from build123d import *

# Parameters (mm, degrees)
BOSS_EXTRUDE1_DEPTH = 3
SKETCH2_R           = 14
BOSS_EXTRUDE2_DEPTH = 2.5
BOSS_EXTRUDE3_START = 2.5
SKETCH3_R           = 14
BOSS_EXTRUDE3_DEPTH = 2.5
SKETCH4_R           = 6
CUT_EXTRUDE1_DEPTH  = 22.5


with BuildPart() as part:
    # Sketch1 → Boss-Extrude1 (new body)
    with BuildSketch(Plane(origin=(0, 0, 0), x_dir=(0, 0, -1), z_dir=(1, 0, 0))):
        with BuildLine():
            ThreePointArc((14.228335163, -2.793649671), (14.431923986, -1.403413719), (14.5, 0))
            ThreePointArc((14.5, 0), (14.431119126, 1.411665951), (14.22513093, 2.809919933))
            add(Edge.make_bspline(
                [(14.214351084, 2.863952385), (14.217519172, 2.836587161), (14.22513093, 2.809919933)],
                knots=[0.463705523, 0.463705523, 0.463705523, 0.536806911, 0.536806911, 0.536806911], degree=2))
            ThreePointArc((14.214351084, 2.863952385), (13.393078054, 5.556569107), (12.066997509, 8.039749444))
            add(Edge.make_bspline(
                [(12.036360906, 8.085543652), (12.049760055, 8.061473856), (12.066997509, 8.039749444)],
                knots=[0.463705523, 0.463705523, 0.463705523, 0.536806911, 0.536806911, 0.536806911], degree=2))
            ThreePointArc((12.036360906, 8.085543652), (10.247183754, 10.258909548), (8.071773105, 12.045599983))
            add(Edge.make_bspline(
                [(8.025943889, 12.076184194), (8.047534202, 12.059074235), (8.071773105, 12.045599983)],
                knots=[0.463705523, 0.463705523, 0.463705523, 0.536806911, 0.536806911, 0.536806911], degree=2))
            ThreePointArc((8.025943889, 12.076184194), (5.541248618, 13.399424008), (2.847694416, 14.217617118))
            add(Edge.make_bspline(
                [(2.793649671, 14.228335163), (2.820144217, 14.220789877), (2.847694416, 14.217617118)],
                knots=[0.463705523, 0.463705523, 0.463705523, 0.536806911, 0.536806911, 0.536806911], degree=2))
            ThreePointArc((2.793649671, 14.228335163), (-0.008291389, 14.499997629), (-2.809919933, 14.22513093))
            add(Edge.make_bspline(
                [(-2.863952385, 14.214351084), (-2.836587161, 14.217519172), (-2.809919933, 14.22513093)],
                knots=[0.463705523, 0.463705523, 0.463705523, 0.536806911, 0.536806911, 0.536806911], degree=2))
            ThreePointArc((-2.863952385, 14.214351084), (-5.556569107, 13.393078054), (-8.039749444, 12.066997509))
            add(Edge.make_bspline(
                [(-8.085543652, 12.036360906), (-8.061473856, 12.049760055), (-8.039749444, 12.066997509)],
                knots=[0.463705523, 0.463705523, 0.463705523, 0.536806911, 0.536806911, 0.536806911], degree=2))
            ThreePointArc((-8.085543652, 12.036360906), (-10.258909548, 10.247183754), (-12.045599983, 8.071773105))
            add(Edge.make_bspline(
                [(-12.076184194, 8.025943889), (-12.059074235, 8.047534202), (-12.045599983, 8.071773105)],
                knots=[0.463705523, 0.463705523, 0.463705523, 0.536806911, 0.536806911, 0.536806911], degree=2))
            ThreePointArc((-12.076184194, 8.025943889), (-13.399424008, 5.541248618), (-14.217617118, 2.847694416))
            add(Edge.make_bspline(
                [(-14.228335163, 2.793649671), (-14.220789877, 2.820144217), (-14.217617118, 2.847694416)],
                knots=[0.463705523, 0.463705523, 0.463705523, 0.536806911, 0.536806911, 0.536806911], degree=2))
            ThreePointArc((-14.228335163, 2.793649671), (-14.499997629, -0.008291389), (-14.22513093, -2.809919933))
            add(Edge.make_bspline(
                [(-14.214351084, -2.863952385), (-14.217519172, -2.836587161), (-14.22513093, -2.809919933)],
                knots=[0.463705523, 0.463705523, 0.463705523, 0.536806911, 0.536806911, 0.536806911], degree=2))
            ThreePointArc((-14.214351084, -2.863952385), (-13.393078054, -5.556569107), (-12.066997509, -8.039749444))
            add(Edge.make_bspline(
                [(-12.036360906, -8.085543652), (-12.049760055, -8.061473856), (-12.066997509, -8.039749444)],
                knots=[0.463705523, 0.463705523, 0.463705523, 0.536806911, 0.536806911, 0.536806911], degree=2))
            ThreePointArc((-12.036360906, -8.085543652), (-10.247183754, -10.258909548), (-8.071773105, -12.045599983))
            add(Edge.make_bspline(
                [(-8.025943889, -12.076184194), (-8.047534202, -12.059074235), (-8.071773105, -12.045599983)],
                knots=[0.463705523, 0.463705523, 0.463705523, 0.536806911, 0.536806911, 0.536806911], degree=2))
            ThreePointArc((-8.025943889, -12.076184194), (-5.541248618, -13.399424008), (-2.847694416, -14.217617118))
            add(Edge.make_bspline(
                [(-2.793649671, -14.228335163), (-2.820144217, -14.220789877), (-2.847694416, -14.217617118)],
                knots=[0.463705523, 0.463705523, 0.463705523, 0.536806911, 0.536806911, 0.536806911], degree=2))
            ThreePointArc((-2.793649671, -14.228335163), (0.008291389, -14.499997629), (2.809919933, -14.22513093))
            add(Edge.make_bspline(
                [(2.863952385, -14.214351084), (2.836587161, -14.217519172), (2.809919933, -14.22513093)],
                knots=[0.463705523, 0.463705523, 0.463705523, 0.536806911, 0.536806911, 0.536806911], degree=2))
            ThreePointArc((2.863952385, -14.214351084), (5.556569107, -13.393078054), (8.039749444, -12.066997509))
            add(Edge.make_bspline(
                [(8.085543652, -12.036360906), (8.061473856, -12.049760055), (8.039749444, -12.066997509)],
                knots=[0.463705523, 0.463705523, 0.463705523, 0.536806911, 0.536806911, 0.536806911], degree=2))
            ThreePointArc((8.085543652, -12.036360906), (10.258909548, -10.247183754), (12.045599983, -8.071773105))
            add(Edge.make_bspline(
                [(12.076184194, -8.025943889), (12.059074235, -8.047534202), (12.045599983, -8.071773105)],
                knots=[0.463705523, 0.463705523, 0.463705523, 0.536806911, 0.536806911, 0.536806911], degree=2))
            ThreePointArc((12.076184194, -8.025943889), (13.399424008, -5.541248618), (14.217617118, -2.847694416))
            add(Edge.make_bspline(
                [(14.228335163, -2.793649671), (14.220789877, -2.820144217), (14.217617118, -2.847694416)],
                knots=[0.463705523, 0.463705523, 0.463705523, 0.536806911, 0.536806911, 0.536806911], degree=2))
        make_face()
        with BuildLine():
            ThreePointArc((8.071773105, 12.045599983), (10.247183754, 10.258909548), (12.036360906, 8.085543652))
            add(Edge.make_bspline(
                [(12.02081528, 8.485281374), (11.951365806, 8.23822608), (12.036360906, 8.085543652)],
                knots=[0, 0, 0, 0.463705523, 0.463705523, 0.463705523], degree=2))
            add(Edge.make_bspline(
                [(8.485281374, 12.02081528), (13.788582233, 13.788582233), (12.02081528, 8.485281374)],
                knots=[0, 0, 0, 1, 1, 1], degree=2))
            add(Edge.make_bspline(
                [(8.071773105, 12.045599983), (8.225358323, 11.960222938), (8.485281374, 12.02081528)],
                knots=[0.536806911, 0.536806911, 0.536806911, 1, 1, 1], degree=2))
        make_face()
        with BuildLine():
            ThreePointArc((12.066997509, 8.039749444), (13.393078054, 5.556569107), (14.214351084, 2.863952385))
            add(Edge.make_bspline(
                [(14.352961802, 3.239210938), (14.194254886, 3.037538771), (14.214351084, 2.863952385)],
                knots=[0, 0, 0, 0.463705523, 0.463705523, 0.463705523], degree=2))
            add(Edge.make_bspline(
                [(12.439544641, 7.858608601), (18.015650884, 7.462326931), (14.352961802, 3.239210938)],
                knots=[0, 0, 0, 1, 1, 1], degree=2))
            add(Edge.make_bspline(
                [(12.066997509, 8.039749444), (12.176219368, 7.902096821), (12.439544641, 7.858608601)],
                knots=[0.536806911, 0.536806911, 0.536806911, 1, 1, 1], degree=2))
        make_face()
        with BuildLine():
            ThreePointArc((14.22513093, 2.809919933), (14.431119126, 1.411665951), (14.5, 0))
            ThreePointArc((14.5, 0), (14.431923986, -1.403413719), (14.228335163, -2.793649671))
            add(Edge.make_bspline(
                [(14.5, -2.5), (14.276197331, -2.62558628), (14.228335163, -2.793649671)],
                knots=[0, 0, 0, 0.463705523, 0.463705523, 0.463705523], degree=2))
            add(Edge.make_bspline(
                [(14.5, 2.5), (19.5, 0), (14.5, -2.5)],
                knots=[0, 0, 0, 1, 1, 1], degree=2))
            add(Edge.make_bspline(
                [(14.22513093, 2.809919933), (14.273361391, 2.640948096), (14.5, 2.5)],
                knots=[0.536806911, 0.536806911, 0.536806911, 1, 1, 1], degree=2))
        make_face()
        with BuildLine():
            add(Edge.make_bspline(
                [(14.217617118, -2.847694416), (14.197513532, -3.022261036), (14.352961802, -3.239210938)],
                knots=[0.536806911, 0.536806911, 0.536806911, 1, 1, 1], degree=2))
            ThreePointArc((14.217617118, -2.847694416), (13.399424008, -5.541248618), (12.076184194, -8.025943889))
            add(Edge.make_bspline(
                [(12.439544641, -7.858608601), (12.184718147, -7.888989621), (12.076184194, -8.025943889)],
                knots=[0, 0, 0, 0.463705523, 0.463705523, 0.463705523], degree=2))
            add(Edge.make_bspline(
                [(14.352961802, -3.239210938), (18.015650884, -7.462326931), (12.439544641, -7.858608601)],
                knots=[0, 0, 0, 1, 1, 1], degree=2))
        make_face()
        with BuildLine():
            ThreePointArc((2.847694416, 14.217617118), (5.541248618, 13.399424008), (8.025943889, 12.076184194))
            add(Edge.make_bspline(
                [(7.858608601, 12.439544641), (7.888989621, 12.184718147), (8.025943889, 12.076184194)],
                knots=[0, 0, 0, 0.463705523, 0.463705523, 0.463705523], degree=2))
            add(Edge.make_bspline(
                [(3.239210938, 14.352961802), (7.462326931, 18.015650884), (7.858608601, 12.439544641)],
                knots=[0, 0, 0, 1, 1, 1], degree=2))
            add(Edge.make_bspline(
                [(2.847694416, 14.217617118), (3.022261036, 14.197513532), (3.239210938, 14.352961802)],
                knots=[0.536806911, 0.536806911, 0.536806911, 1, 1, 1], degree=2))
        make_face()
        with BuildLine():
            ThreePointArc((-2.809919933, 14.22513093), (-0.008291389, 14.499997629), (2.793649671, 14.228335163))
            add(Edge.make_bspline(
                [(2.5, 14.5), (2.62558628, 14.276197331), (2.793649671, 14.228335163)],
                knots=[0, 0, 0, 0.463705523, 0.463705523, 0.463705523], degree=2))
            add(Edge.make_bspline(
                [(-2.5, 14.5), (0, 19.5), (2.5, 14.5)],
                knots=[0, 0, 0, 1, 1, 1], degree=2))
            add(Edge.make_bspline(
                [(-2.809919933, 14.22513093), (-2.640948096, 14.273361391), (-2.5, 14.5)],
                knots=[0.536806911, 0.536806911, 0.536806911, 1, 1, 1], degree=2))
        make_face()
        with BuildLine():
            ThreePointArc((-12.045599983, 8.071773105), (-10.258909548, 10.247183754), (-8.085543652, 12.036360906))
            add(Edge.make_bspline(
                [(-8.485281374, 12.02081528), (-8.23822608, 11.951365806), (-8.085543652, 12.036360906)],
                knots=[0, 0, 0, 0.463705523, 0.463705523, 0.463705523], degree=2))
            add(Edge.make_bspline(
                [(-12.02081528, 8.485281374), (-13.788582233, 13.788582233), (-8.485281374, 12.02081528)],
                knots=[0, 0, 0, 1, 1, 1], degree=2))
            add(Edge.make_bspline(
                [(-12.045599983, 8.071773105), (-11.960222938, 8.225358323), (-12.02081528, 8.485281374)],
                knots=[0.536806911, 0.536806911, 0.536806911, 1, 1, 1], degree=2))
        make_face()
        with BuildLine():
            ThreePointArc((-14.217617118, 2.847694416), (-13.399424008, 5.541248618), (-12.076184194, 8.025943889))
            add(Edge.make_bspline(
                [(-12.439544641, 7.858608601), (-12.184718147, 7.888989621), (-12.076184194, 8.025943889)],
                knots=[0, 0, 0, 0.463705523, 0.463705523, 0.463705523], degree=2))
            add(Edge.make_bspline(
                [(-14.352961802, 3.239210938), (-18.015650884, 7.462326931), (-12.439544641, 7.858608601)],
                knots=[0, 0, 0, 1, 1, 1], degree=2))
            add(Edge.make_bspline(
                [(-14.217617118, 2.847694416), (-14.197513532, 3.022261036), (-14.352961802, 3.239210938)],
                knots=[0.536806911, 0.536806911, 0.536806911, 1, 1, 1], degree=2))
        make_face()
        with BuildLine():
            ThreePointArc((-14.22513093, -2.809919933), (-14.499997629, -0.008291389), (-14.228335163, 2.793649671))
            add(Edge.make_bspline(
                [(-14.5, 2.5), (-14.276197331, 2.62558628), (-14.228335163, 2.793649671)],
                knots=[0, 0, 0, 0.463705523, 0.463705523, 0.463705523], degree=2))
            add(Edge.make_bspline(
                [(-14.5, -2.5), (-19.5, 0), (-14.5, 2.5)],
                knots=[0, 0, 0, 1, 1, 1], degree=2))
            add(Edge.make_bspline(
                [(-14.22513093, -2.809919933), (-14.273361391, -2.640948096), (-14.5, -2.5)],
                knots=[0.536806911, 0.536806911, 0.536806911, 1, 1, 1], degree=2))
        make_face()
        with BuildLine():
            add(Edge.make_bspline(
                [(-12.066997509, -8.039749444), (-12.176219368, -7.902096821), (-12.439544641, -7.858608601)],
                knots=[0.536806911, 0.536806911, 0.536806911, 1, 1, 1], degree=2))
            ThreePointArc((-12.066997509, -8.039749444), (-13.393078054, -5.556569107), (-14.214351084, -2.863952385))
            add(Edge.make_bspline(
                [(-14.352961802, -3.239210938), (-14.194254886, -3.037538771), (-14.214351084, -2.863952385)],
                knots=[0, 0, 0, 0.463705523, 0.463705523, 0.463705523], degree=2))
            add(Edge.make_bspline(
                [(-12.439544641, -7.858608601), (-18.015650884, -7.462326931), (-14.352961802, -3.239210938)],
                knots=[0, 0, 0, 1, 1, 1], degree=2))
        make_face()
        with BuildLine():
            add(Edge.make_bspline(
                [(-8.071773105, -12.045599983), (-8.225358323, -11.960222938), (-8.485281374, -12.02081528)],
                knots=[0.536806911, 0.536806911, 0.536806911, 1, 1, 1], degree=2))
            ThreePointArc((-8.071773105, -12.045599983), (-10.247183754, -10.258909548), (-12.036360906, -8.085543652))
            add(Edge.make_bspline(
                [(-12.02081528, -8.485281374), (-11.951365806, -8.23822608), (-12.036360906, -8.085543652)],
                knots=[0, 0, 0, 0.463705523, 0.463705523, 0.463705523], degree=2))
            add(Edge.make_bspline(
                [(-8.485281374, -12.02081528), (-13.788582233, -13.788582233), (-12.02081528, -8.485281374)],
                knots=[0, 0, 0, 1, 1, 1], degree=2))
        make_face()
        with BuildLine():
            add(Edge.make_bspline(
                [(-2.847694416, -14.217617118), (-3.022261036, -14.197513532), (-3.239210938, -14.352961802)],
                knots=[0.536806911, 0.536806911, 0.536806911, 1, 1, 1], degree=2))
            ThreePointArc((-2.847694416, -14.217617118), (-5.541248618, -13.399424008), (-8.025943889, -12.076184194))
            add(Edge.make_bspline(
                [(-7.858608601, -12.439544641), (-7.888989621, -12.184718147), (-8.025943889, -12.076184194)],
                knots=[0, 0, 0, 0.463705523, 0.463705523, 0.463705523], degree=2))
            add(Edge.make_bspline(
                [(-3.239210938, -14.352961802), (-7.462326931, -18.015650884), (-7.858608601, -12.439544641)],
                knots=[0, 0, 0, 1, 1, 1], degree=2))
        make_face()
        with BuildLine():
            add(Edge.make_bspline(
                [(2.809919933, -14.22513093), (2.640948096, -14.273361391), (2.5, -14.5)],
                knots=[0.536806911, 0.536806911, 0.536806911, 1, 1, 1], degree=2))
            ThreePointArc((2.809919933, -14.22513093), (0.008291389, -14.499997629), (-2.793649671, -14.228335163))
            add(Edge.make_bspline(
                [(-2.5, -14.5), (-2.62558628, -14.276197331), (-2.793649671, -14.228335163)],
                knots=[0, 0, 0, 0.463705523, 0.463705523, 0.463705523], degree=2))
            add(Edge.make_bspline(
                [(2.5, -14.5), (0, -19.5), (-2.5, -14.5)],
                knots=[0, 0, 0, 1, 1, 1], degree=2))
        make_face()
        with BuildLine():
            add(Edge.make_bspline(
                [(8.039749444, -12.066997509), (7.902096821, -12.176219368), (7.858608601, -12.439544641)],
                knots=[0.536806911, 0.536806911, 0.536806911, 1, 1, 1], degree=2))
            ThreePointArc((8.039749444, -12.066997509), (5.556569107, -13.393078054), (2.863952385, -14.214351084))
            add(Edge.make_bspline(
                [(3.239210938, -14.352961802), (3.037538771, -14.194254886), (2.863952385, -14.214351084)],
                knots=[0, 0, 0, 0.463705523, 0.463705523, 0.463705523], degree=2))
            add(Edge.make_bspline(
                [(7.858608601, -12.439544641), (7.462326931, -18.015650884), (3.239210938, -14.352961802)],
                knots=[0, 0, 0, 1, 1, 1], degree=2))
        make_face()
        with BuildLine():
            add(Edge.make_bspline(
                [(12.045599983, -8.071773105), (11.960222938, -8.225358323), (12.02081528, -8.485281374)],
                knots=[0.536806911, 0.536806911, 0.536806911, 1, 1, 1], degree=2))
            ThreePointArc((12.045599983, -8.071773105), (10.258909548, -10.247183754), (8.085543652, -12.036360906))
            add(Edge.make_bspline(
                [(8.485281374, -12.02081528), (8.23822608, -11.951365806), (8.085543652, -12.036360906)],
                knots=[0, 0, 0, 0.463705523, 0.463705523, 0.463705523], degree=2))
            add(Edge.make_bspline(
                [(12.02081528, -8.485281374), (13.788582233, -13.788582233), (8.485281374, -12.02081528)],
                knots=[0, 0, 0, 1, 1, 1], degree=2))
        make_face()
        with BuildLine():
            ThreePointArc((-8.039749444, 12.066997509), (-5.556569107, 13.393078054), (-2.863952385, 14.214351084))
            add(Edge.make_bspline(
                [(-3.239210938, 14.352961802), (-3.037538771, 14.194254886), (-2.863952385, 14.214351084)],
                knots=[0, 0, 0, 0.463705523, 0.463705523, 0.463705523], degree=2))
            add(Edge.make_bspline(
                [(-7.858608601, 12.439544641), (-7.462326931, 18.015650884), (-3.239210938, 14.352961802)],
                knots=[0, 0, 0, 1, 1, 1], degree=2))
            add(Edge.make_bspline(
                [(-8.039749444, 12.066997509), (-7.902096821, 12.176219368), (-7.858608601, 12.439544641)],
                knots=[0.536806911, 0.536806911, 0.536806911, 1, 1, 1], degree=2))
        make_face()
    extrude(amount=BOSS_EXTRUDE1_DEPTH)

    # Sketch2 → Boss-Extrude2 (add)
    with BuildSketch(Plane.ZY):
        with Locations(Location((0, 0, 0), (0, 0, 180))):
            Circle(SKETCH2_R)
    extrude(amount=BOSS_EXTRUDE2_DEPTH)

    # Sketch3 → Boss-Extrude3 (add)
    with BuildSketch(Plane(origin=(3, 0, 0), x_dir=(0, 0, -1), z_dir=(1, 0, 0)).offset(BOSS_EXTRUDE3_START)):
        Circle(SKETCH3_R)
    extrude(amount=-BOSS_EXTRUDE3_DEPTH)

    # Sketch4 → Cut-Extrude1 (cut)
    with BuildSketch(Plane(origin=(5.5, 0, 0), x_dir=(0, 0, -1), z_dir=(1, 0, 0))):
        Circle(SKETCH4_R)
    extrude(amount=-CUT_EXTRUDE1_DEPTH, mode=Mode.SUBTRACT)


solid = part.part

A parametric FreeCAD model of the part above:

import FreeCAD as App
import Part
import Sketcher
from FreeCAD import Vector
Q = App.Units.Quantity

doc = App.newDocument("Part")
body = doc.addObject("PartDesign::Body", "Body")

# Sketch on YZ plane
sketch1 = doc.addObject("Sketcher::SketchObject", "Sketch")
body.addObject(sketch1)
sketch1.AttachmentSupport = (doc.YZ_Plane, [""])
sketch1.MapMode = "FlatFace"
sketch1.addGeometry([
    Part.BSplineCurve([Vector(2.863952, -14.214351, 0), Vector(2.836587, -14.217519, 0), Vector(2.80992, -14.225131, 0)], [3, 3], [0.463705523, 0.536806911], False, 2, [1, 1, 1], False),  # 0
    Part.BSplineCurve([Vector(3.239211, -14.352962, 0), Vector(3.037539, -14.194255, 0), Vector(2.863952, -14.214351, 0)], [3, 3], [0, 0.463705523], False, 2, [1, 1, 1], False),  # 1
    Part.BSplineCurve([Vector(7.858609, -12.439545, 0), Vector(7.462327, -18.015651, 0), Vector(3.239211, -14.352962, 0)], [3, 3], [0, 1], False, 2, [1, 1, 1], False),  # 2
    Part.BSplineCurve([Vector(8.039749, -12.066998, 0), Vector(7.902097, -12.176219, 0), Vector(7.858609, -12.439545, 0)], [3, 3], [0.536806911, 1], False, 2, [1, 1, 1], False),  # 3
    Part.BSplineCurve([Vector(8.085544, -12.036361, 0), Vector(8.061474, -12.04976, 0), Vector(8.039749, -12.066998, 0)], [3, 3], [0.463705523, 0.536806911], False, 2, [1, 1, 1], False),  # 4
    Part.BSplineCurve([Vector(8.485281, -12.020815, 0), Vector(8.238226, -11.951366, 0), Vector(8.085544, -12.036361, 0)], [3, 3], [0, 0.463705523], False, 2, [1, 1, 1], False),  # 5
    Part.BSplineCurve([Vector(12.020815, -8.485281, 0), Vector(13.788582, -13.788582, 0), Vector(8.485281, -12.020815, 0)], [3, 3], [0, 1], False, 2, [1, 1, 1], False),  # 6
    Part.BSplineCurve([Vector(12.0456, -8.071773, 0), Vector(11.960223, -8.225358, 0), Vector(12.020815, -8.485281, 0)], [3, 3], [0.536806911, 1], False, 2, [1, 1, 1], False),  # 7
    Part.BSplineCurve([Vector(12.076184, -8.025944, 0), Vector(12.059074, -8.047534, 0), Vector(12.0456, -8.071773, 0)], [3, 3], [0.463705523, 0.536806911], False, 2, [1, 1, 1], False),  # 8
    Part.BSplineCurve([Vector(12.439545, -7.858609, 0), Vector(12.184718, -7.88899, 0), Vector(12.076184, -8.025944, 0)], [3, 3], [0, 0.463705523], False, 2, [1, 1, 1], False),  # 9
    Part.BSplineCurve([Vector(14.352962, -3.239211, 0), Vector(18.015651, -7.462327, 0), Vector(12.439545, -7.858609, 0)], [3, 3], [0, 1], False, 2, [1, 1, 1], False),  # 10
    Part.BSplineCurve([Vector(14.217617, -2.847694, 0), Vector(14.197514, -3.022261, 0), Vector(14.352962, -3.239211, 0)], [3, 3], [0.536806911, 1], False, 2, [1, 1, 1], False),  # 11
    Part.BSplineCurve([Vector(14.228335, -2.79365, 0), Vector(14.22079, -2.820144, 0), Vector(14.217617, -2.847694, 0)], [3, 3], [0.463705523, 0.536806911], False, 2, [1, 1, 1], False),  # 12
    Part.BSplineCurve([Vector(14.5, -2.5, 0), Vector(14.276197, -2.625586, 0), Vector(14.228335, -2.79365, 0)], [3, 3], [0, 0.463705523], False, 2, [1, 1, 1], False),  # 13
    Part.BSplineCurve([Vector(14.5, 2.5, 0), Vector(19.5, 0, 0), Vector(14.5, -2.5, 0)], [3, 3], [0, 1], False, 2, [1, 1, 1], False),  # 14
    Part.BSplineCurve([Vector(14.225131, 2.80992, 0), Vector(14.273361, 2.640948, 0), Vector(14.5, 2.5, 0)], [3, 3], [0.536806911, 1], False, 2, [1, 1, 1], False),  # 15
    Part.BSplineCurve([Vector(14.214351, 2.863952, 0), Vector(14.217519, 2.836587, 0), Vector(14.225131, 2.80992, 0)], [3, 3], [0.463705523, 0.536806911], False, 2, [1, 1, 1], False),  # 16
    Part.BSplineCurve([Vector(14.352962, 3.239211, 0), Vector(14.194255, 3.037539, 0), Vector(14.214351, 2.863952, 0)], [3, 3], [0, 0.463705523], False, 2, [1, 1, 1], False),  # 17
    Part.BSplineCurve([Vector(12.439545, 7.858609, 0), Vector(18.015651, 7.462327, 0), Vector(14.352962, 3.239211, 0)], [3, 3], [0, 1], False, 2, [1, 1, 1], False),  # 18
    Part.BSplineCurve([Vector(12.066998, 8.039749, 0), Vector(12.176219, 7.902097, 0), Vector(12.439545, 7.858609, 0)], [3, 3], [0.536806911, 1], False, 2, [1, 1, 1], False),  # 19
    Part.BSplineCurve([Vector(12.036361, 8.085544, 0), Vector(12.04976, 8.061474, 0), Vector(12.066998, 8.039749, 0)], [3, 3], [0.463705523, 0.536806911], False, 2, [1, 1, 1], False),  # 20
    Part.BSplineCurve([Vector(12.020815, 8.485281, 0), Vector(11.951366, 8.238226, 0), Vector(12.036361, 8.085544, 0)], [3, 3], [0, 0.463705523], False, 2, [1, 1, 1], False),  # 21
    Part.BSplineCurve([Vector(8.485281, 12.020815, 0), Vector(13.788582, 13.788582, 0), Vector(12.020815, 8.485281, 0)], [3, 3], [0, 1], False, 2, [1, 1, 1], False),  # 22
    Part.BSplineCurve([Vector(8.071773, 12.0456, 0), Vector(8.225358, 11.960223, 0), Vector(8.485281, 12.020815, 0)], [3, 3], [0.536806911, 1], False, 2, [1, 1, 1], False),  # 23
    Part.BSplineCurve([Vector(8.025944, 12.076184, 0), Vector(8.047534, 12.059074, 0), Vector(8.071773, 12.0456, 0)], [3, 3], [0.463705523, 0.536806911], False, 2, [1, 1, 1], False),  # 24
    Part.BSplineCurve([Vector(7.858609, 12.439545, 0), Vector(7.88899, 12.184718, 0), Vector(8.025944, 12.076184, 0)], [3, 3], [0, 0.463705523], False, 2, [1, 1, 1], False),  # 25
    Part.BSplineCurve([Vector(3.239211, 14.352962, 0), Vector(7.462327, 18.015651, 0), Vector(7.858609, 12.439545, 0)], [3, 3], [0, 1], False, 2, [1, 1, 1], False),  # 26
    Part.BSplineCurve([Vector(2.847694, 14.217617, 0), Vector(3.022261, 14.197514, 0), Vector(3.239211, 14.352962, 0)], [3, 3], [0.536806911, 1], False, 2, [1, 1, 1], False),  # 27
    Part.BSplineCurve([Vector(2.79365, 14.228335, 0), Vector(2.820144, 14.22079, 0), Vector(2.847694, 14.217617, 0)], [3, 3], [0.463705523, 0.536806911], False, 2, [1, 1, 1], False),  # 28
    Part.BSplineCurve([Vector(2.5, 14.5, 0), Vector(2.625586, 14.276197, 0), Vector(2.79365, 14.228335, 0)], [3, 3], [0, 0.463705523], False, 2, [1, 1, 1], False),  # 29
    Part.BSplineCurve([Vector(-2.5, 14.5, 0), Vector(0, 19.5, 0), Vector(2.5, 14.5, 0)], [3, 3], [0, 1], False, 2, [1, 1, 1], False),  # 30
    Part.BSplineCurve([Vector(-2.80992, 14.225131, 0), Vector(-2.640948, 14.273361, 0), Vector(-2.5, 14.5, 0)], [3, 3], [0.536806911, 1], False, 2, [1, 1, 1], False),  # 31
    Part.BSplineCurve([Vector(-2.863952, 14.214351, 0), Vector(-2.836587, 14.217519, 0), Vector(-2.80992, 14.225131, 0)], [3, 3], [0.463705523, 0.536806911], False, 2, [1, 1, 1], False),  # 32
    Part.BSplineCurve([Vector(-3.239211, 14.352962, 0), Vector(-3.037539, 14.194255, 0), Vector(-2.863952, 14.214351, 0)], [3, 3], [0, 0.463705523], False, 2, [1, 1, 1], False),  # 33
    Part.BSplineCurve([Vector(-7.858609, 12.439545, 0), Vector(-7.462327, 18.015651, 0), Vector(-3.239211, 14.352962, 0)], [3, 3], [0, 1], False, 2, [1, 1, 1], False),  # 34
    Part.BSplineCurve([Vector(-8.039749, 12.066998, 0), Vector(-7.902097, 12.176219, 0), Vector(-7.858609, 12.439545, 0)], [3, 3], [0.536806911, 1], False, 2, [1, 1, 1], False),  # 35
    Part.BSplineCurve([Vector(-8.085544, 12.036361, 0), Vector(-8.061474, 12.04976, 0), Vector(-8.039749, 12.066998, 0)], [3, 3], [0.463705523, 0.536806911], False, 2, [1, 1, 1], False),  # 36
    Part.BSplineCurve([Vector(-8.485281, 12.020815, 0), Vector(-8.238226, 11.951366, 0), Vector(-8.085544, 12.036361, 0)], [3, 3], [0, 0.463705523], False, 2, [1, 1, 1], False),  # 37
    Part.BSplineCurve([Vector(-12.020815, 8.485281, 0), Vector(-13.788582, 13.788582, 0), Vector(-8.485281, 12.020815, 0)], [3, 3], [0, 1], False, 2, [1, 1, 1], False),  # 38
    Part.BSplineCurve([Vector(-12.0456, 8.071773, 0), Vector(-11.960223, 8.225358, 0), Vector(-12.020815, 8.485281, 0)], [3, 3], [0.536806911, 1], False, 2, [1, 1, 1], False),  # 39
    Part.BSplineCurve([Vector(-12.076184, 8.025944, 0), Vector(-12.059074, 8.047534, 0), Vector(-12.0456, 8.071773, 0)], [3, 3], [0.463705523, 0.536806911], False, 2, [1, 1, 1], False),  # 40
    Part.BSplineCurve([Vector(-12.439545, 7.858609, 0), Vector(-12.184718, 7.88899, 0), Vector(-12.076184, 8.025944, 0)], [3, 3], [0, 0.463705523], False, 2, [1, 1, 1], False),  # 41
    Part.BSplineCurve([Vector(-14.352962, 3.239211, 0), Vector(-18.015651, 7.462327, 0), Vector(-12.439545, 7.858609, 0)], [3, 3], [0, 1], False, 2, [1, 1, 1], False),  # 42
    Part.BSplineCurve([Vector(-14.217617, 2.847694, 0), Vector(-14.197514, 3.022261, 0), Vector(-14.352962, 3.239211, 0)], [3, 3], [0.536806911, 1], False, 2, [1, 1, 1], False),  # 43
    Part.BSplineCurve([Vector(-14.228335, 2.79365, 0), Vector(-14.22079, 2.820144, 0), Vector(-14.217617, 2.847694, 0)], [3, 3], [0.463705523, 0.536806911], False, 2, [1, 1, 1], False),  # 44
    Part.BSplineCurve([Vector(-14.5, 2.5, 0), Vector(-14.276197, 2.625586, 0), Vector(-14.228335, 2.79365, 0)], [3, 3], [0, 0.463705523], False, 2, [1, 1, 1], False),  # 45
    Part.BSplineCurve([Vector(-14.5, -2.5, 0), Vector(-19.5, 0, 0), Vector(-14.5, 2.5, 0)], [3, 3], [0, 1], False, 2, [1, 1, 1], False),  # 46
    Part.BSplineCurve([Vector(-14.225131, -2.80992, 0), Vector(-14.273361, -2.640948, 0), Vector(-14.5, -2.5, 0)], [3, 3], [0.536806911, 1], False, 2, [1, 1, 1], False),  # 47
    Part.BSplineCurve([Vector(-14.214351, -2.863952, 0), Vector(-14.217519, -2.836587, 0), Vector(-14.225131, -2.80992, 0)], [3, 3], [0.463705523, 0.536806911], False, 2, [1, 1, 1], False),  # 48
    Part.BSplineCurve([Vector(-14.352962, -3.239211, 0), Vector(-14.194255, -3.037539, 0), Vector(-14.214351, -2.863952, 0)], [3, 3], [0, 0.463705523], False, 2, [1, 1, 1], False),  # 49
    Part.BSplineCurve([Vector(-12.439545, -7.858609, 0), Vector(-18.015651, -7.462327, 0), Vector(-14.352962, -3.239211, 0)], [3, 3], [0, 1], False, 2, [1, 1, 1], False),  # 50
    Part.BSplineCurve([Vector(-12.066998, -8.039749, 0), Vector(-12.176219, -7.902097, 0), Vector(-12.439545, -7.858609, 0)], [3, 3], [0.536806911, 1], False, 2, [1, 1, 1], False),  # 51
    Part.BSplineCurve([Vector(-12.036361, -8.085544, 0), Vector(-12.04976, -8.061474, 0), Vector(-12.066998, -8.039749, 0)], [3, 3], [0.463705523, 0.536806911], False, 2, [1, 1, 1], False),  # 52
    Part.BSplineCurve([Vector(-12.020815, -8.485281, 0), Vector(-11.951366, -8.238226, 0), Vector(-12.036361, -8.085544, 0)], [3, 3], [0, 0.463705523], False, 2, [1, 1, 1], False),  # 53
    Part.BSplineCurve([Vector(-8.485281, -12.020815, 0), Vector(-13.788582, -13.788582, 0), Vector(-12.020815, -8.485281, 0)], [3, 3], [0, 1], False, 2, [1, 1, 1], False),  # 54
    Part.BSplineCurve([Vector(-8.071773, -12.0456, 0), Vector(-8.225358, -11.960223, 0), Vector(-8.485281, -12.020815, 0)], [3, 3], [0.536806911, 1], False, 2, [1, 1, 1], False),  # 55
    Part.BSplineCurve([Vector(-8.025944, -12.076184, 0), Vector(-8.047534, -12.059074, 0), Vector(-8.071773, -12.0456, 0)], [3, 3], [0.463705523, 0.536806911], False, 2, [1, 1, 1], False),  # 56
    Part.BSplineCurve([Vector(-7.858609, -12.439545, 0), Vector(-7.88899, -12.184718, 0), Vector(-8.025944, -12.076184, 0)], [3, 3], [0, 0.463705523], False, 2, [1, 1, 1], False),  # 57
    Part.BSplineCurve([Vector(-3.239211, -14.352962, 0), Vector(-7.462327, -18.015651, 0), Vector(-7.858609, -12.439545, 0)], [3, 3], [0, 1], False, 2, [1, 1, 1], False),  # 58
    Part.BSplineCurve([Vector(-2.847694, -14.217617, 0), Vector(-3.022261, -14.197514, 0), Vector(-3.239211, -14.352962, 0)], [3, 3], [0.536806911, 1], False, 2, [1, 1, 1], False),  # 59
    Part.BSplineCurve([Vector(-2.79365, -14.228335, 0), Vector(-2.820144, -14.22079, 0), Vector(-2.847694, -14.217617, 0)], [3, 3], [0.463705523, 0.536806911], False, 2, [1, 1, 1], False),  # 60
    Part.BSplineCurve([Vector(-2.5, -14.5, 0), Vector(-2.625586, -14.276197, 0), Vector(-2.79365, -14.228335, 0)], [3, 3], [0, 0.463705523], False, 2, [1, 1, 1], False),  # 61
    Part.BSplineCurve([Vector(2.5, -14.5, 0), Vector(0, -19.5, 0), Vector(-2.5, -14.5, 0)], [3, 3], [0, 1], False, 2, [1, 1, 1], False),  # 62
    Part.BSplineCurve([Vector(2.80992, -14.225131, 0), Vector(2.640948, -14.273361, 0), Vector(2.5, -14.5, 0)], [3, 3], [0.536806911, 1], False, 2, [1, 1, 1], False),  # 63
], False)
sketch1.addConstraint([
    Sketcher.Constraint("Block", 0),
    Sketcher.Constraint("Block", 1),
    Sketcher.Constraint("Block", 2),
    Sketcher.Constraint("Block", 3),
    Sketcher.Constraint("Block", 4),
    Sketcher.Constraint("Block", 5),
    Sketcher.Constraint("Block", 6),
    Sketcher.Constraint("Block", 7),
    Sketcher.Constraint("Block", 8),
    Sketcher.Constraint("Block", 9),
    Sketcher.Constraint("Block", 10),
    Sketcher.Constraint("Block", 11),
    Sketcher.Constraint("Block", 12),
    Sketcher.Constraint("Block", 13),
    Sketcher.Constraint("Block", 14),
    Sketcher.Constraint("Block", 15),
    Sketcher.Constraint("Block", 16),
    Sketcher.Constraint("Block", 17),
    Sketcher.Constraint("Block", 18),
    Sketcher.Constraint("Block", 19),
    Sketcher.Constraint("Block", 20),
    Sketcher.Constraint("Block", 21),
    Sketcher.Constraint("Block", 22),
    Sketcher.Constraint("Block", 23),
    Sketcher.Constraint("Block", 24),
    Sketcher.Constraint("Block", 25),
    Sketcher.Constraint("Block", 26),
    Sketcher.Constraint("Block", 27),
    Sketcher.Constraint("Block", 28),
    Sketcher.Constraint("Block", 29),
    Sketcher.Constraint("Block", 30),
    Sketcher.Constraint("Block", 31),
    Sketcher.Constraint("Block", 32),
    Sketcher.Constraint("Block", 33),
    Sketcher.Constraint("Block", 34),
    Sketcher.Constraint("Block", 35),
    Sketcher.Constraint("Block", 36),
    Sketcher.Constraint("Block", 37),
    Sketcher.Constraint("Block", 38),
    Sketcher.Constraint("Block", 39),
    Sketcher.Constraint("Block", 40),
    Sketcher.Constraint("Block", 41),
    Sketcher.Constraint("Block", 42),
    Sketcher.Constraint("Block", 43),
    Sketcher.Constraint("Block", 44),
    Sketcher.Constraint("Block", 45),
    Sketcher.Constraint("Block", 46),
    Sketcher.Constraint("Block", 47),
    Sketcher.Constraint("Block", 48),
    Sketcher.Constraint("Block", 49),
    Sketcher.Constraint("Block", 50),
    Sketcher.Constraint("Block", 51),
    Sketcher.Constraint("Block", 52),
    Sketcher.Constraint("Block", 53),
    Sketcher.Constraint("Block", 54),
    Sketcher.Constraint("Block", 55),
    Sketcher.Constraint("Block", 56),
    Sketcher.Constraint("Block", 57),
    Sketcher.Constraint("Block", 58),
    Sketcher.Constraint("Block", 59),
    Sketcher.Constraint("Block", 60),
    Sketcher.Constraint("Block", 61),
    Sketcher.Constraint("Block", 62),
    Sketcher.Constraint("Block", 63),
])
pad1 = doc.addObject("PartDesign::Pad", "Pad")
body.addObject(pad1)
pad1.Profile = sketch1
pad1.Length = 3

# Sketch on YZ plane
sketch2 = doc.addObject("Sketcher::SketchObject", "Sketch001")
body.addObject(sketch2)
sketch2.AttachmentSupport = (doc.YZ_Plane, [""])
sketch2.MapMode = "FlatFace"
sketch2.addGeometry(Part.Circle(Vector(0, 0, 0), Vector(0, 0, 1), 14), False)
sketch2.addConstraint([
    Sketcher.Constraint("Coincident", 0, 3, -1, 1),
    Sketcher.Constraint("Diameter", 0, Q("28 mm")),
])
pad2 = doc.addObject("PartDesign::Pad", "Pad001")
body.addObject(pad2)
pad2.Profile = sketch2
pad2.Length = 2.5
pad2.Reversed = True

# Sketch on YZ plane
sketch3 = doc.addObject("Sketcher::SketchObject", "Sketch002")
body.addObject(sketch3)
sketch3.AttachmentSupport = (doc.YZ_Plane, [""])
sketch3.MapMode = "FlatFace"
sketch3.AttachmentOffset = App.Placement(Vector(0, 0, 5.5), App.Rotation())
sketch3.addGeometry(Part.Circle(Vector(0, 0, 0), Vector(0, 0, 1), 14), False)
sketch3.addConstraint([
    Sketcher.Constraint("Coincident", 0, 3, -1, 1),
    Sketcher.Constraint("Diameter", 0, Q("28 mm")),
])
pad3 = doc.addObject("PartDesign::Pad", "Pad002")
body.addObject(pad3)
pad3.Profile = sketch3
pad3.Length = 2.5
pad3.Reversed = True

# Sketch on YZ plane
sketch4 = doc.addObject("Sketcher::SketchObject", "Sketch003")
body.addObject(sketch4)
sketch4.AttachmentSupport = (doc.YZ_Plane, [""])
sketch4.MapMode = "FlatFace"
sketch4.AttachmentOffset = App.Placement(Vector(0, 0, 5.5), App.Rotation())
sketch4.addGeometry(Part.Circle(Vector(0, 0, 0), Vector(0, 0, 1), 6), False)
sketch4.addConstraint([
    Sketcher.Constraint("Coincident", 0, 3, -1, 1),
    Sketcher.Constraint("Diameter", 0, Q("12 mm")),
])
pocket1 = doc.addObject("PartDesign::Pocket", "Pocket")
body.addObject(pocket1)
pocket1.Profile = sketch4
pocket1.Length = 22.5

doc.recompute()
